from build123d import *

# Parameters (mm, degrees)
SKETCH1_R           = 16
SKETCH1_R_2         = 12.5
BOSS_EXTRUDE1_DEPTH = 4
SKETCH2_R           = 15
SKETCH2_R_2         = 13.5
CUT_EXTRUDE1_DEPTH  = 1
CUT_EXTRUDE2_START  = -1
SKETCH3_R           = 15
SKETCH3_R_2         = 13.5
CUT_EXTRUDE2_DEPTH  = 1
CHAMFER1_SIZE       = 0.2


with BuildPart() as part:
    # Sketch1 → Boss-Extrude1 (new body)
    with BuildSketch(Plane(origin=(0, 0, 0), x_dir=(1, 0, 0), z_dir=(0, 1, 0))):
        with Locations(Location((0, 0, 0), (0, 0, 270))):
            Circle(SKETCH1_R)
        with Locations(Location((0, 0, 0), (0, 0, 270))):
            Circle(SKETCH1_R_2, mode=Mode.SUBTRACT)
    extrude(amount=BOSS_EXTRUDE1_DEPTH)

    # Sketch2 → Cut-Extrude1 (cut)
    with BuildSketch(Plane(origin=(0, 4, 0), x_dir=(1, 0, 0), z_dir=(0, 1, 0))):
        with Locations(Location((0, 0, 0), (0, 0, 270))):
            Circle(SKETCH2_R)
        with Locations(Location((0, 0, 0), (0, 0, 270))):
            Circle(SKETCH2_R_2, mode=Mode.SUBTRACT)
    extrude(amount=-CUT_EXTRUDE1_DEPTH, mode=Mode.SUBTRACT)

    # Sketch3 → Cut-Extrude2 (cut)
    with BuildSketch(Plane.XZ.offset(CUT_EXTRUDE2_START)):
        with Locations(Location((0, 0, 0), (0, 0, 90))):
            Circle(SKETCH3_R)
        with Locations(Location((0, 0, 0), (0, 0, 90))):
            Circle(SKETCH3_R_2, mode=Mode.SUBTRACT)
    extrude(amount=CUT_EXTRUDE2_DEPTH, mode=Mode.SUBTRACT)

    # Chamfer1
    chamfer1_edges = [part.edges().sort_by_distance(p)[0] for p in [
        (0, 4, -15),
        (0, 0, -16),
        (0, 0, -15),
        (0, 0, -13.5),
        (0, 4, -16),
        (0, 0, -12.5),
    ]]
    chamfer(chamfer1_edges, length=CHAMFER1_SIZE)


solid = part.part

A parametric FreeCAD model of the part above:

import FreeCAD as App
import Part
import Sketcher

V = App.Vector


def edges_at(feature, points):
    """Names of the edges that pass closest to the given points."""
    edges = feature.Shape.Edges
    near = lambda p: min(range(len(edges)), key=lambda i: edges[i].distToShape(Part.Vertex(*p))[0])
    return sorted({f"Edge{near(p) + 1}" for p in points})

doc = App.newDocument("Part")
body = doc.addObject("PartDesign::Body", "Body")

sketch1 = body.newObject("Sketcher::SketchObject", "Sketch")
sketch1.AttachmentSupport = (doc.getObject("XZ_Plane"), [""])
sketch1.MapMode = "FlatFace"
sketch1.addGeometry([
    Part.Circle(V(0, 0, 0), V(0, 0, 1), 16),
    Part.Circle(V(0, 0, 0), V(0, 0, 1), 12),
], False)
sketch1.addConstraint([
    Sketcher.Constraint("Coincident", 0, 3, -1, 1),
    Sketcher.Constraint("Coincident", 1, 3, -1, 1),
    Sketcher.Constraint("Diameter", 0, 32.0),
    Sketcher.Constraint("Diameter", 1, 25.0),
])
pad1 = body.newObject("PartDesign::Pad", "Pad")
pad1.Profile = sketch1
pad1.Length = 4
pad1.Reversed = True

sketch2 = body.newObject("Sketcher::SketchObject", "Sketch001")
sketch2.AttachmentSupport = (doc.getObject("XZ_Plane"), [""])
sketch2.MapMode = "FlatFace"
sketch2.AttachmentOffset = App.Placement(V(0, 0, -4), App.Rotation())
sketch2.addGeometry([
    Part.Circle(V(0, 0, 0), V(0, 0, 1), 15),
    Part.Circle(V(0, 0, 0), V(0, 0, 1), 14),
], False)
sketch2.addConstraint([
    Sketcher.Constraint("Coincident", 0, 3, -1, 1),
    Sketcher.Constraint("Coincident", 1, 3, -1, 1),
    Sketcher.Constraint("Diameter", 0, 30.0),
    Sketcher.Constraint("Diameter", 1, 27.0),
])
pocket1 = body.newObject("PartDesign::Pocket", "Pocket")
pocket1.Profile = sketch2
pocket1.Length = 1
pocket1.Reversed = True

sketch3 = body.newObject("Sketcher::SketchObject", "Sketch002")
sketch3.AttachmentSupport = (doc.getObject("XZ_Plane"), [""])
sketch3.MapMode = "FlatFace"
sketch3.AttachmentOffset = App.Placement(V(0, 0, -1), App.Rotation())
sketch3.addGeometry([
    Part.Circle(V(0, 0, 0), V(0, 0, 1), 15),
    Part.Circle(V(0, 0, 0), V(0, 0, 1), 14),
], False)
sketch3.addConstraint([
    Sketcher.Constraint("Coincident", 0, 3, -1, 1),
    Sketcher.Constraint("Coincident", 1, 3, -1, 1),
    Sketcher.Constraint("Diameter", 0, 30.0),
    Sketcher.Constraint("Diameter", 1, 27.0),
])
pocket2 = body.newObject("PartDesign::Pocket", "Pocket001")
pocket2.Profile = sketch3
pocket2.Length = 1
pocket2.Reversed = True
doc.recompute()

chamfer = body.newObject("PartDesign::Chamfer", "Chamfer")
chamfer.Base = (pocket2, edges_at(pocket2, [
    (0, 4, -15),
    (0, 0, -16),
    (0, 0, -15),
    (0, 0, -13.5),
    (0, 4, -16),
    (0, 0, -12.5),
]))
chamfer.Size = 0.2

doc.recompute()
